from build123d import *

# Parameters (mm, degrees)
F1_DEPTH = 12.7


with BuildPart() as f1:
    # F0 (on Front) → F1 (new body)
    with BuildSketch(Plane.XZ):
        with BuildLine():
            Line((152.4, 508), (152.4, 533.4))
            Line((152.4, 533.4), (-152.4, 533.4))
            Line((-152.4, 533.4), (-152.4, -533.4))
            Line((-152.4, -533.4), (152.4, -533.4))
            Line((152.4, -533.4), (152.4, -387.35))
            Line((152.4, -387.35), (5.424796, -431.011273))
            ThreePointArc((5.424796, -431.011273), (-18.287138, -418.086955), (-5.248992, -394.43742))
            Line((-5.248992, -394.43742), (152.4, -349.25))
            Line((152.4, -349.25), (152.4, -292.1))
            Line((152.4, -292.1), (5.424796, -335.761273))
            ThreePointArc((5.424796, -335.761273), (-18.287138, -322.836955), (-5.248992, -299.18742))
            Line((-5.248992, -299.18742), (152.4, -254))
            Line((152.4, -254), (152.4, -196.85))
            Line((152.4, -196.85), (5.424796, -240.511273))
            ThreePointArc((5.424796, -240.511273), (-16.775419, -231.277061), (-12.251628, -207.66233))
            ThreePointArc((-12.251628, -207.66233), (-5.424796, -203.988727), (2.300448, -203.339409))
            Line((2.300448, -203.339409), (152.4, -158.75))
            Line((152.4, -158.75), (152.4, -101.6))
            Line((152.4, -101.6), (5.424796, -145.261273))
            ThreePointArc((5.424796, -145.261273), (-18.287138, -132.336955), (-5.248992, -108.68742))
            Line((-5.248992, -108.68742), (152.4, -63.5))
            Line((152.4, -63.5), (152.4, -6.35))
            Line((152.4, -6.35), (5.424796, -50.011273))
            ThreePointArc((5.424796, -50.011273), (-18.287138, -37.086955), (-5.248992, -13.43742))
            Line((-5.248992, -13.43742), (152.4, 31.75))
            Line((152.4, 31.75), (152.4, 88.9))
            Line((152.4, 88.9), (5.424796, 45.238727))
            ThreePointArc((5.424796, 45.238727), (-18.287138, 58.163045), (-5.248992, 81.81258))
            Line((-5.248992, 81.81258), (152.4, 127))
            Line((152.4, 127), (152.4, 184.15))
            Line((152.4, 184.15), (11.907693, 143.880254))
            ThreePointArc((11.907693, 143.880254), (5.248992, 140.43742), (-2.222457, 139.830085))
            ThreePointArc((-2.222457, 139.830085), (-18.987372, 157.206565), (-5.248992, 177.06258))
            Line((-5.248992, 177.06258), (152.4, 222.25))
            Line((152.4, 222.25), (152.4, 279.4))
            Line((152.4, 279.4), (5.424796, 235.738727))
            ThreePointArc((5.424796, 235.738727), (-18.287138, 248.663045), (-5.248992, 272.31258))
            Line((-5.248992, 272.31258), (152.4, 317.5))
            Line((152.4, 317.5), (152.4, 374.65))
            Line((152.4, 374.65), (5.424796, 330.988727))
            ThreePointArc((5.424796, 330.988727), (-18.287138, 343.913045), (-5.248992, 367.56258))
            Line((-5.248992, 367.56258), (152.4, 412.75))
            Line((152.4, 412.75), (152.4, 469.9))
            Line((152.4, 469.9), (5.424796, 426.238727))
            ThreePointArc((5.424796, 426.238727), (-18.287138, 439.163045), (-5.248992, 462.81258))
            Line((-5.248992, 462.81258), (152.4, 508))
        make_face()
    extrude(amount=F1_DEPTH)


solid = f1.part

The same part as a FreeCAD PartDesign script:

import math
import FreeCAD as App
import Part
import Sketcher
from FreeCAD import Vector
Q = App.Units.Quantity

doc = App.newDocument("Part")
params = doc.addObject("Spreadsheet::Sheet", "Params")
for row, (alias, value) in enumerate([
    ("sketch1_width", "12 in"),
    ("sketch1_height", "1 in"),
    ("sketch1_height2", "42 in"),
    ("sketch1_radius", "0.75 in"),
    ("pad1_length", "0.5 in"),
], start=1):
    params.set(f"A{row}", alias)
    params.set(f"B{row}", "=" + value)
    params.setAlias(f"B{row}", alias)

body = doc.addObject("PartDesign::Body", "Body")

sketch1 = body.newObject("Sketcher::SketchObject", "Sketch")
sketch1.AttachmentSupport = (doc.getObject("XZ_Plane"), [""])
sketch1.MapMode = "FlatFace"
sketch1.addGeometry([
    Part.LineSegment(Vector(152.4, 508, 0), Vector(152.4, 533.4, 0)),
    Part.LineSegment(Vector(152.4, 533.4, 0), Vector(-152.4, 533.4, 0)),
    Part.LineSegment(Vector(-152.4, 533.4, 0), Vector(-152.4, -533.4, 0)),
    Part.LineSegment(Vector(-152.4, -533.4, 0), Vector(152.4, -533.4, 0)),
    Part.LineSegment(Vector(152.4, -533.4, 0), Vector(152.4, -387.35, 0)),
    Part.LineSegment(Vector(152.4, -387.35, 0), Vector(5.424796, -431.011273, 0)),
    Part.ArcOfCircle(Part.Circle(Vector(0, -412.75, 0), Vector(0, 0, 1), 19.05), math.radians(105.994056), math.radians(286.544873)),
    Part.LineSegment(Vector(-5.248992, -394.43742, 0), Vector(152.4, -349.25, 0)),
    Part.LineSegment(Vector(152.4, -349.25, 0), Vector(152.4, -292.1, 0)),
    Part.LineSegment(Vector(152.4, -292.1, 0), Vector(5.424796, -335.761273, 0)),
    Part.ArcOfCircle(Part.Circle(Vector(0, -317.5, 0), Vector(0, 0, 1), 19.05), math.radians(105.994056), math.radians(286.544873)),
    Part.LineSegment(Vector(-5.248992, -299.18742, 0), Vector(152.4, -254, 0)),
    Part.LineSegment(Vector(152.4, -254, 0), Vector(152.4, -196.85, 0)),
    Part.LineSegment(Vector(152.4, -196.85, 0), Vector(5.424796, -240.511273, 0)),
    Part.ArcOfCircle(Part.Circle(Vector(0, -222.25, 0), Vector(0, 0, 1), 19.05), math.radians(130.025618), math.radians(286.544874)),
    Part.ArcOfCircle(Part.Circle(Vector(0.000001, -222.250002, 0), Vector(0, 0, 1), 19.050002), math.radians(83.064128), math.radians(130.025618)),
    Part.LineSegment(Vector(2.300448, -203.339409, 0), Vector(152.4, -158.75, 0)),
    Part.LineSegment(Vector(152.4, -158.75, 0), Vector(152.4, -101.6, 0)),
    Part.LineSegment(Vector(152.4, -101.6, 0), Vector(5.424796, -145.261273, 0)),
    Part.ArcOfCircle(Part.Circle(Vector(0, -127, 0), Vector(0, 0, 1), 19.05), math.radians(105.994056), math.radians(286.544873)),
    Part.LineSegment(Vector(-5.248992, -108.68742, 0), Vector(152.4, -63.5, 0)),
    Part.LineSegment(Vector(152.4, -63.5, 0), Vector(152.4, -6.35, 0)),
    Part.LineSegment(Vector(152.4, -6.35, 0), Vector(5.424796, -50.011273, 0)),
    Part.ArcOfCircle(Part.Circle(Vector(0, -31.75, 0), Vector(0, 0, 1), 19.05), math.radians(105.994056), math.radians(286.544873)),
    Part.LineSegment(Vector(-5.248992, -13.43742, 0), Vector(152.4, 31.75, 0)),
    Part.LineSegment(Vector(152.4, 31.75, 0), Vector(152.4, 88.9, 0)),
    Part.LineSegment(Vector(152.4, 88.9, 0), Vector(5.424796, 45.238727, 0)),
    Part.ArcOfCircle(Part.Circle(Vector(0, 63.5, 0), Vector(0, 0, 1), 19.05), math.radians(105.994056), math.radians(286.544873)),
    Part.LineSegment(Vector(-5.248992, 81.81258, 0), Vector(152.4, 127, 0)),
    Part.LineSegment(Vector(152.4, 127, 0), Vector(152.4, 184.15, 0)),
    Part.LineSegment(Vector(152.4, 184.15, 0), Vector(11.907693, 143.880254, 0)),
    Part.ArcOfCircle(Part.Circle(Vector(0, 158.749999, 0), Vector(0, 0, 1), 19.049999), math.radians(-96.699637), math.radians(-51.312251)),
    Part.ArcOfCircle(Part.Circle(Vector(0, 158.75, 0), Vector(0, 0, 1), 19.05), math.radians(105.994058), math.radians(263.300364)),
    Part.LineSegment(Vector(-5.248992, 177.06258, 0), Vector(152.4, 222.25, 0)),
    Part.LineSegment(Vector(152.4, 222.25, 0), Vector(152.4, 279.4, 0)),
    Part.LineSegment(Vector(152.4, 279.4, 0), Vector(5.424796, 235.738727, 0)),
    Part.ArcOfCircle(Part.Circle(Vector(0, 254, 0), Vector(0, 0, 1), 19.05), math.radians(105.994056), math.radians(286.544873)),
    Part.LineSegment(Vector(-5.248992, 272.31258, 0), Vector(152.4, 317.5, 0)),
    Part.LineSegment(Vector(152.4, 317.5, 0), Vector(152.4, 374.65, 0)),
    Part.LineSegment(Vector(152.4, 374.65, 0), Vector(5.424796, 330.988727, 0)),
    Part.ArcOfCircle(Part.Circle(Vector(0, 349.25, 0), Vector(0, 0, 1), 19.05), math.radians(105.994056), math.radians(286.544873)),
    Part.LineSegment(Vector(-5.248992, 367.56258, 0), Vector(152.4, 412.75, 0)),
    Part.LineSegment(Vector(152.4, 412.75, 0), Vector(152.4, 469.9, 0)),
    Part.LineSegment(Vector(152.4, 469.9, 0), Vector(5.424796, 426.238727, 0)),
    Part.ArcOfCircle(Part.Circle(Vector(0, 444.5, 0), Vector(0, 0, 1), 19.05), math.radians(105.994056), math.radians(286.544873)),
    Part.LineSegment(Vector(-5.248992, 462.81258, 0), Vector(152.4, 508, 0)),
], False)
sketch1.addConstraint([
    Sketcher.Constraint("Coincident", 0, 2, 1, 1),
    Sketcher.Constraint("Coincident", 1, 2, 2, 1),
    Sketcher.Constraint("Coincident", 2, 2, 3, 1),
    Sketcher.Constraint("Coincident", 3, 2, 4, 1),
    Sketcher.Constraint("Coincident", 4, 2, 5, 1),
    Sketcher.Constraint("Tangent", 5, 2, 6, 2),
    Sketcher.Constraint("Tangent", 6, 1, 7, 1),
    Sketcher.Constraint("Coincident", 7, 2, 8, 1),
    Sketcher.Constraint("Coincident", 8, 2, 9, 1),
    Sketcher.Constraint("Tangent", 9, 2, 10, 2),
    Sketcher.Constraint("Tangent", 10, 1, 11, 1),
    Sketcher.Constraint("Coincident", 11, 2, 12, 1),
    Sketcher.Constraint("Coincident", 12, 2, 13, 1),
    Sketcher.Constraint("Tangent", 13, 2, 14, 2),
    Sketcher.Constraint("Tangent", 14, 1, 15, 2),
    Sketcher.Constraint("Coincident", 15, 1, 16, 1),
    Sketcher.Constraint("Coincident", 16, 2, 17, 1),
    Sketcher.Constraint("Coincident", 17, 2, 18, 1),
    Sketcher.Constraint("Tangent", 18, 2, 19, 2),
    Sketcher.Constraint("Tangent", 19, 1, 20, 1),
    Sketcher.Constraint("Coincident", 20, 2, 21, 1),
    Sketcher.Constraint("Coincident", 21, 2, 22, 1),
    Sketcher.Constraint("Tangent", 22, 2, 23, 2),
    Sketcher.Constraint("Tangent", 23, 1, 24, 1),
    Sketcher.Constraint("Coincident", 24, 2, 25, 1),
    Sketcher.Constraint("Coincident", 25, 2, 26, 1),
    Sketcher.Constraint("Tangent", 26, 2, 27, 2),
    Sketcher.Constraint("Tangent", 27, 1, 28, 1),
    Sketcher.Constraint("Coincident", 28, 2, 29, 1),
    Sketcher.Constraint("Coincident", 29, 2, 30, 1),
    Sketcher.Constraint("Coincident", 30, 2, 31, 2),
    Sketcher.Constraint("Tangent", 31, 1, 32, 2),
    Sketcher.Constraint("Tangent", 32, 1, 33, 1),
    Sketcher.Constraint("Coincident", 33, 2, 34, 1),
    Sketcher.Constraint("Coincident", 34, 2, 35, 1),
    Sketcher.Constraint("Tangent", 35, 2, 36, 2),
    Sketcher.Constraint("Tangent", 36, 1, 37, 1),
    Sketcher.Constraint("Coincident", 37, 2, 38, 1),
    Sketcher.Constraint("Coincident", 38, 2, 39, 1),
    Sketcher.Constraint("Tangent", 39, 2, 40, 2),
    Sketcher.Constraint("Tangent", 40, 1, 41, 1),
    Sketcher.Constraint("Coincident", 41, 2, 42, 1),
    Sketcher.Constraint("Coincident", 42, 2, 43, 1),
    Sketcher.Constraint("Tangent", 43, 2, 44, 2),
    Sketcher.Constraint("Tangent", 44, 1, 45, 1),
    Sketcher.Constraint("Coincident", 45, 2, 0, 1),
    Sketcher.Constraint("Vertical", 0),
    Sketcher.Constraint("Horizontal", 1),
    Sketcher.Constraint("Vertical", 2),
    Sketcher.Constraint("Horizontal", 3),
    Sketcher.Constraint("Vertical", 4),
    Sketcher.Constraint("Vertical", 8),
    Sketcher.Constraint("Vertical", 12),
    Sketcher.Constraint("Vertical", 17),
    Sketcher.Constraint("Vertical", 21),
    Sketcher.Constraint("Vertical", 25),
    Sketcher.Constraint("Vertical", 29),
    Sketcher.Constraint("Vertical", 34),
    Sketcher.Constraint("Vertical", 38),
    Sketcher.Constraint("Vertical", 42),
    Sketcher.Constraint("Equal", 6, 10),
    Sketcher.Constraint("Equal", 10, 14),
    Sketcher.Constraint("Equal", 14, 15),
    Sketcher.Constraint("Equal", 15, 19),
    Sketcher.Constraint("Equal", 19, 23),
    Sketcher.Constraint("Equal", 23, 27),
    Sketcher.Constraint("Equal", 27, 31),
    Sketcher.Constraint("Equal", 31, 32),
    Sketcher.Constraint("Equal", 32, 36),
    Sketcher.Constraint("Equal", 36, 40),
    Sketcher.Constraint("Equal", 40, 44),
    Sketcher.Constraint("Symmetric", 0, 2, 2, 2, -1, 1),
    Sketcher.Constraint("PointOnObject", 6, 3, -2),
    Sketcher.Constraint("PointOnObject", 10, 3, -2),
    Sketcher.Constraint("PointOnObject", 14, 3, -2),
    Sketcher.Constraint("PointOnObject", 19, 3, -2),
    Sketcher.Constraint("PointOnObject", 23, 3, -2),
    Sketcher.Constraint("PointOnObject", 27, 3, -2),
    Sketcher.Constraint("PointOnObject", 31, 3, -2),
    Sketcher.Constraint("PointOnObject", 36, 3, -2),
    Sketcher.Constraint("PointOnObject", 40, 3, -2),
    Sketcher.Constraint("PointOnObject", 44, 3, -2),
    Sketcher.Constraint("Parallel", 5, 9),
    Sketcher.Constraint("Parallel", 7, 11),
    Sketcher.Constraint("Parallel", 9, 13),
    Sketcher.Constraint("Parallel", 13, 16),
    Sketcher.Constraint("Parallel", 16, 18),
    Sketcher.Constraint("Parallel", 11, 20),
    Sketcher.Constraint("Parallel", 18, 22),
    Sketcher.Constraint("Parallel", 20, 24),
    Sketcher.Constraint("Parallel", 22, 26),
    Sketcher.Constraint("Parallel", 24, 28),
    Sketcher.Constraint("Parallel", 28, 30),
    Sketcher.Constraint("Parallel", 30, 33),
    Sketcher.Constraint("Parallel", 26, 35),
    Sketcher.Constraint("Parallel", 33, 37),
    Sketcher.Constraint("Parallel", 35, 39),
    Sketcher.Constraint("Parallel", 37, 41),
    Sketcher.Constraint("Parallel", 39, 43),
    Sketcher.Constraint("Parallel", 41, 45),
    Sketcher.Constraint("Vertical", 0, 2, 3, 2),
    Sketcher.Constraint("Vertical", 4, 2, 7, 2),
    Sketcher.Constraint("Vertical", 8, 2, 11, 2),
    Sketcher.Constraint("Vertical", 12, 2, 16, 2),
    Sketcher.Constraint("Vertical", 17, 2, 20, 2),
    Sketcher.Constraint("Vertical", 21, 2, 24, 2),
    Sketcher.Constraint("Vertical", 25, 2, 28, 2),
    Sketcher.Constraint("Vertical", 29, 2, 33, 2),
    Sketcher.Constraint("Vertical", 34, 2, 37, 2),
    Sketcher.Constraint("Vertical", 38, 2, 41, 2),
    Sketcher.Constraint("Equal", 8, 12),
    Sketcher.Constraint("Equal", 12, 17),
    Sketcher.Constraint("Equal", 17, 21),
    Sketcher.Constraint("Equal", 21, 25),
    Sketcher.Constraint("Equal", 25, 29),
    Sketcher.Constraint("Equal", 29, 34),
    Sketcher.Constraint("Equal", 34, 38),
    Sketcher.Constraint("Equal", 38, 42),
    Sketcher.Constraint("DistanceX", 1, 2, 1, 1, Q("12 in")),
    Sketcher.Constraint("DistanceY", 0, 1, 0, 2, Q("1 in")),
    Sketcher.Constraint("DistanceY", 2, 2, 2, 1, Q("42 in")),
    Sketcher.Constraint("Radius", 6, Q("0.75 in")),
    Sketcher.Constraint("DistanceY", 19, 3, -1, 1, Q("5 in")),
    Sketcher.Constraint("DistanceY", -1, 1, 36, 3, Q("10 in")),
    Sketcher.Constraint("DistanceY", 11, 2, -1, 1, Q("10 in")),
    Sketcher.Constraint("DistanceY", 17, 2, -1, 1, Q("4 in")),
    Sketcher.Constraint("DistanceY", 14, 3, 31, 3, Q("14.9999999 in")),
    Sketcher.Constraint("DistanceX", 14, 1, -1, 1, 12.251628),
    Sketcher.Constraint("DistanceX", 31, 1, 30, 2, 14.13015),
])
sketch1.setExpression("Constraints[118]", "Params.sketch1_width")
sketch1.setExpression("Constraints[119]", "Params.sketch1_height")
sketch1.setExpression("Constraints[120]", "Params.sketch1_height2")
sketch1.setExpression("Constraints[121]", "Params.sketch1_radius")
pad1 = body.newObject("PartDesign::Pad", "Pad")
pad1.Profile = sketch1
pad1.setExpression("Length", "Params.pad1_length")

doc.recompute()
